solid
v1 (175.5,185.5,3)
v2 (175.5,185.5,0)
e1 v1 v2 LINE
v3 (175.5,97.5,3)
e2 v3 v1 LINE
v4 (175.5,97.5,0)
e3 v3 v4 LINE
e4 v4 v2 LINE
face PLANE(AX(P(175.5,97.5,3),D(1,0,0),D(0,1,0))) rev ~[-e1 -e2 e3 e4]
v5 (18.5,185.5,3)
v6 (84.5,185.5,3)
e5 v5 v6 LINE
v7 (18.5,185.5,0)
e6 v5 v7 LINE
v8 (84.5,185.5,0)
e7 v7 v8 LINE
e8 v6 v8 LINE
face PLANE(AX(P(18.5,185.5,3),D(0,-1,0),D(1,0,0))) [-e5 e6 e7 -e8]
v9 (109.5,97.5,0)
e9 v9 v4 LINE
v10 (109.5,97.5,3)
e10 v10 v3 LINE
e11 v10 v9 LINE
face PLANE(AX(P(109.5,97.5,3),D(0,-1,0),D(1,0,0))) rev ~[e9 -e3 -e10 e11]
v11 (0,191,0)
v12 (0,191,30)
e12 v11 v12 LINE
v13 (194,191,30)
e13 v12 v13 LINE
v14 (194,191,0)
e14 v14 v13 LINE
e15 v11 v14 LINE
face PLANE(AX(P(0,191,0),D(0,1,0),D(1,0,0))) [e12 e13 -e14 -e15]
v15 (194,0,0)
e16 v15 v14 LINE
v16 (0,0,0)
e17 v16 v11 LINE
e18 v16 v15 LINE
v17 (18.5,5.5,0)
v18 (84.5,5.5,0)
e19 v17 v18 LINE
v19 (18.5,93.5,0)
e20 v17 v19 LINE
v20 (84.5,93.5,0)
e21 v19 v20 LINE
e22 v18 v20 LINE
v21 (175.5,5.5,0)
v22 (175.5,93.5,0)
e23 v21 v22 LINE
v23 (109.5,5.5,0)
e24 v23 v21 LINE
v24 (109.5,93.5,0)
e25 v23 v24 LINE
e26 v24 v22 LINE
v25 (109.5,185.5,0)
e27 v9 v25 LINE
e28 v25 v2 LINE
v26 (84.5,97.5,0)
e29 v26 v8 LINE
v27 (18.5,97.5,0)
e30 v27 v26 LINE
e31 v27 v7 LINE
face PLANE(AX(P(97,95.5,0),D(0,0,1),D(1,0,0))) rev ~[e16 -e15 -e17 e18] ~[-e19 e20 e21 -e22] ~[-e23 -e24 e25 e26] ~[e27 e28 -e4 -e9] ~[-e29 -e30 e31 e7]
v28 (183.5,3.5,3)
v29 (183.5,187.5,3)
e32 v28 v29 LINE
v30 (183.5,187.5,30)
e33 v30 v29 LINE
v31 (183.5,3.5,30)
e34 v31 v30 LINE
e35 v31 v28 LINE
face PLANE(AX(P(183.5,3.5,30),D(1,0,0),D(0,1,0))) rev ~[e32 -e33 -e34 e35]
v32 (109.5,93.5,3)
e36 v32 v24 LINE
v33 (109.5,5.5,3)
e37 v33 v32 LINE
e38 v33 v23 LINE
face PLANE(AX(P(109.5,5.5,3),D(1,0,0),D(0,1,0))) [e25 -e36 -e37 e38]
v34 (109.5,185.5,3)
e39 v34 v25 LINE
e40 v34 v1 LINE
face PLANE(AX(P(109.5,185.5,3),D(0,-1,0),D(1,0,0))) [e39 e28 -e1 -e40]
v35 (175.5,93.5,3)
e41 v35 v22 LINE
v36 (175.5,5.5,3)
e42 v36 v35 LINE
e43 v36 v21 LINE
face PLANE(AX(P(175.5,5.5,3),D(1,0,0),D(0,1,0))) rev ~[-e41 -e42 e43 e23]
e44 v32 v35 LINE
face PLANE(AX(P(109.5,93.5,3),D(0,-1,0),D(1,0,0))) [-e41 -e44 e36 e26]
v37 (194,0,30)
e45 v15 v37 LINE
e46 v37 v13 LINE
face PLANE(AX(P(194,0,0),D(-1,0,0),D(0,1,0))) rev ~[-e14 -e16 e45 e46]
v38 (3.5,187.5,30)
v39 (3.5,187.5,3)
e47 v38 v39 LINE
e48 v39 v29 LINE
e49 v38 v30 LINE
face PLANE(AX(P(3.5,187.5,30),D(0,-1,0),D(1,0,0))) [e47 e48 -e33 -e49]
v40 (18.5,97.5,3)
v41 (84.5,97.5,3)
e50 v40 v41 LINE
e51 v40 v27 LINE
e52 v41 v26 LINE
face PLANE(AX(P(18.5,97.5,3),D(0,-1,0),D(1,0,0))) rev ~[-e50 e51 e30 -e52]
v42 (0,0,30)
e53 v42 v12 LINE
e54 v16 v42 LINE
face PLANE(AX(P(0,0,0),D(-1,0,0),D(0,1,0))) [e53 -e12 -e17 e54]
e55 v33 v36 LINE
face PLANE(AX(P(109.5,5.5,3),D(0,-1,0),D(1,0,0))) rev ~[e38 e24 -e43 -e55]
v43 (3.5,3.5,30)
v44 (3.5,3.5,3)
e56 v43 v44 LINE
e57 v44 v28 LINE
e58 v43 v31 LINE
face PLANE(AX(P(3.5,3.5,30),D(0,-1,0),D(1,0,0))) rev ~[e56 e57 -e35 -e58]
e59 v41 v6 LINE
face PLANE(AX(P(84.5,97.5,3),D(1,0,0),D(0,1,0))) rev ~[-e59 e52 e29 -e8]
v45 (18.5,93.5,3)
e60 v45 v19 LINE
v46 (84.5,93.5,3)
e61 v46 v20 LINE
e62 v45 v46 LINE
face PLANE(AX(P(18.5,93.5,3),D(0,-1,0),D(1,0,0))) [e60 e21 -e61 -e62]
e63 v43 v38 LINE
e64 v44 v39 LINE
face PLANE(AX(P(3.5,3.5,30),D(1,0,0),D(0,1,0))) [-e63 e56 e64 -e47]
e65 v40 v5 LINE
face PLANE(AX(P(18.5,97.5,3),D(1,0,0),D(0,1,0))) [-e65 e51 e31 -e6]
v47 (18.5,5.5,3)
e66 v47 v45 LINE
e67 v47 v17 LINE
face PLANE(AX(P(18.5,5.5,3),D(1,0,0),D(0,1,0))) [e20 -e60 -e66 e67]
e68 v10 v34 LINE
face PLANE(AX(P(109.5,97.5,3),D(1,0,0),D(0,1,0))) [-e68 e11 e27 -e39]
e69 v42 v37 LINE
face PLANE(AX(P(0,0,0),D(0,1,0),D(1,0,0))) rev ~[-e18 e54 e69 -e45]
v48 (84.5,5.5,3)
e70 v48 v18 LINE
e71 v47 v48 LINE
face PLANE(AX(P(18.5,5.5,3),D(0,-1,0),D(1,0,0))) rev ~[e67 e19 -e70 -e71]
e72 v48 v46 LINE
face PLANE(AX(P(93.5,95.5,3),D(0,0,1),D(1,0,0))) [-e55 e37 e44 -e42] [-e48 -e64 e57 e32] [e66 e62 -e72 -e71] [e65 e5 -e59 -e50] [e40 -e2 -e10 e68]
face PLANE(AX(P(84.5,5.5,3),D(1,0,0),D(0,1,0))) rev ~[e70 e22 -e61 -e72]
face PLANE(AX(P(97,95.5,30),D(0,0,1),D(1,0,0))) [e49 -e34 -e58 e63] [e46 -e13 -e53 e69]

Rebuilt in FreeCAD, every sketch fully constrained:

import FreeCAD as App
import Part
import Sketcher
from FreeCAD import Vector
Q = App.Units.Quantity

doc = App.newDocument("Part")
body = doc.addObject("PartDesign::Body", "Body")

# Sketch on XY plane
sketch1 = doc.addObject("Sketcher::SketchObject", "Sketch")
body.addObject(sketch1)
sketch1.AttachmentSupport = (doc.XY_Plane, [""])
sketch1.MapMode = "FlatFace"
sketch1.addGeometry(Part.LineSegment(Vector(0, 191, 0), Vector(0, 0, 0)), False)
sketch1.addGeometry(Part.LineSegment(Vector(0, 0, 0), Vector(194, 0, 0)), False)
sketch1.addGeometry(Part.LineSegment(Vector(194, 0, 0), Vector(194, 191, 0)), False)
sketch1.addGeometry(Part.LineSegment(Vector(194, 191, 0), Vector(0, 191, 0)), False)
sketch1.addConstraint(Sketcher.Constraint("Coincident", 0, 2, 1, 1))
sketch1.addConstraint(Sketcher.Constraint("Coincident", 1, 2, 2, 1))
sketch1.addConstraint(Sketcher.Constraint("Coincident", 2, 2, 3, 1))
sketch1.addConstraint(Sketcher.Constraint("Coincident", 3, 2, 0, 1))
sketch1.addConstraint(Sketcher.Constraint("Vertical", 0))
sketch1.addConstraint(Sketcher.Constraint("Horizontal", 1))
sketch1.addConstraint(Sketcher.Constraint("Vertical", 2))
sketch1.addConstraint(Sketcher.Constraint("Horizontal", 3))
sketch1.addConstraint(Sketcher.Constraint("Coincident", 0, 2, -1, 1))
sketch1.addConstraint(Sketcher.Constraint("DistanceX", 1, 1, 1, 2, Q("194 mm")))
sketch1.addConstraint(Sketcher.Constraint("DistanceY", 0, 2, 0, 1, Q("191 mm")))
pad1 = doc.addObject("PartDesign::Pad", "Pad")
body.addObject(pad1)
pad1.Profile = sketch1
pad1.Length = 30

# Sketch on XY plane
sketch2 = doc.addObject("Sketcher::SketchObject", "Sketch001")
body.addObject(sketch2)
sketch2.AttachmentSupport = (doc.XY_Plane, [""])
sketch2.MapMode = "FlatFace"
sketch2.AttachmentOffset = App.Placement(Vector(0, 0, 30), App.Rotation())
sketch2.addGeometry(Part.LineSegment(Vector(3.5, 187.5, 0), Vector(3.5, 3.5, 0)), False)
sketch2.addGeometry(Part.LineSegment(Vector(3.5, 3.5, 0), Vector(183.5, 3.5, 0)), False)
sketch2.addGeometry(Part.LineSegment(Vector(183.5, 3.5, 0), Vector(183.5, 187.5, 0)), False)
sketch2.addGeometry(Part.LineSegment(Vector(183.5, 187.5, 0), Vector(3.5, 187.5, 0)), False)
sketch2.addConstraint(Sketcher.Constraint("Coincident", 0, 2, 1, 1))
sketch2.addConstraint(Sketcher.Constraint("Coincident", 1, 2, 2, 1))
sketch2.addConstraint(Sketcher.Constraint("Coincident", 2, 2, 3, 1))
sketch2.addConstraint(Sketcher.Constraint("Coincident", 3, 2, 0, 1))
sketch2.addConstraint(Sketcher.Constraint("Vertical", 0))
sketch2.addConstraint(Sketcher.Constraint("Horizontal", 1))
sketch2.addConstraint(Sketcher.Constraint("Vertical", 2))
sketch2.addConstraint(Sketcher.Constraint("Horizontal", 3))
sketch2.addConstraint(Sketcher.Constraint("DistanceX", 1, 1, 1, 2, Q("180 mm")))
sketch2.addConstraint(Sketcher.Constraint("DistanceY", 0, 2, 0, 1, Q("184 mm")))
sketch2.addConstraint(Sketcher.Constraint("DistanceX", -1, 1, 0, 2, Q("3.5 mm")))
sketch2.addConstraint(Sketcher.Constraint("DistanceY", -1, 1, 0, 2, Q("3.5 mm")))
pocket1 = doc.addObject("PartDesign::Pocket", "Pocket")
body.addObject(pocket1)
pocket1.Profile = sketch2
pocket1.Length = 27

# Sketch on XY plane
sketch3 = doc.addObject("Sketcher::SketchObject", "Sketch002")
body.addObject(sketch3)
sketch3.AttachmentSupport = (doc.XY_Plane, [""])
sketch3.MapMode = "FlatFace"
sketch3.AttachmentOffset = App.Placement(Vector(0, 0, 3), App.Rotation())
sketch3.addGeometry(Part.LineSegment(Vector(18.5, 185.5, 0), Vector(18.5, 97.5, 0)), False)
sketch3.addGeometry(Part.LineSegment(Vector(18.5, 97.5, 0), Vector(84.5, 97.5, 0)), False)
sketch3.addGeometry(Part.LineSegment(Vector(84.5, 97.5, 0), Vector(84.5, 185.5, 0)), False)
sketch3.addGeometry(Part.LineSegment(Vector(84.5, 185.5, 0), Vector(18.5, 185.5, 0)), False)
sketch3.addConstraint(Sketcher.Constraint("Coincident", 0, 2, 1, 1))
sketch3.addConstraint(Sketcher.Constraint("Coincident", 1, 2, 2, 1))
sketch3.addConstraint(Sketcher.Constraint("Coincident", 2, 2, 3, 1))
sketch3.addConstraint(Sketcher.Constraint("Coincident", 3, 2, 0, 1))
sketch3.addConstraint(Sketcher.Constraint("Vertical", 0))
sketch3.addConstraint(Sketcher.Constraint("Horizontal", 1))
sketch3.addConstraint(Sketcher.Constraint("Vertical", 2))
sketch3.addConstraint(Sketcher.Constraint("Horizontal", 3))
sketch3.addConstraint(Sketcher.Constraint("DistanceX", 1, 1, 1, 2, Q("66 mm")))
sketch3.addConstraint(Sketcher.Constraint("DistanceY", 0, 2, 0, 1, Q("88 mm")))
sketch3.addConstraint(Sketcher.Constraint("DistanceX", -1, 1, 0, 2, Q("18.5 mm")))
sketch3.addConstraint(Sketcher.Constraint("DistanceY", -1, 1, 0, 2, Q("97.5 mm")))
pocket2 = doc.addObject("PartDesign::Pocket", "Pocket001")
body.addObject(pocket2)
pocket2.Profile = sketch3
pocket2.Length = 5

# Sketch on XY plane
sketch4 = doc.addObject("Sketcher::SketchObject", "Sketch003")
body.addObject(sketch4)
sketch4.AttachmentSupport = (doc.XY_Plane, [""])
sketch4.MapMode = "FlatFace"
sketch4.AttachmentOffset = App.Placement(Vector(0, 0, 3), App.Rotation())
sketch4.addGeometry(Part.LineSegment(Vector(109.5, 185.5, 0), Vector(109.5, 97.5, 0)), False)
sketch4.addGeometry(Part.LineSegment(Vector(109.5, 97.5, 0), Vector(175.5, 97.5, 0)), False)
sketch4.addGeometry(Part.LineSegment(Vector(175.5, 97.5, 0), Vector(175.5, 185.5, 0)), False)
sketch4.addGeometry(Part.LineSegment(Vector(175.5, 185.5, 0), Vector(109.5, 185.5, 0)), False)
sketch4.addConstraint(Sketcher.Constraint("Coincident", 0, 2, 1, 1))
sketch4.addConstraint(Sketcher.Constraint("Coincident", 1, 2, 2, 1))
sketch4.addConstraint(Sketcher.Constraint("Coincident", 2, 2, 3, 1))
sketch4.addConstraint(Sketcher.Constraint("Coincident", 3, 2, 0, 1))
sketch4.addConstraint(Sketcher.Constraint("Vertical", 0))
sketch4.addConstraint(Sketcher.Constraint("Horizontal", 1))
sketch4.addConstraint(Sketcher.Constraint("Vertical", 2))
sketch4.addConstraint(Sketcher.Constraint("Horizontal", 3))
sketch4.addConstraint(Sketcher.Constraint("DistanceX", 1, 1, 1, 2, Q("66 mm")))
sketch4.addConstraint(Sketcher.Constraint("DistanceY", 0, 2, 0, 1, Q("88 mm")))
sketch4.addConstraint(Sketcher.Constraint("DistanceX", -1, 1, 0, 2, Q("109.5 mm")))
sketch4.addConstraint(Sketcher.Constraint("DistanceY", -1, 1, 0, 2, Q("97.5 mm")))
pocket3 = doc.addObject("PartDesign::Pocket", "Pocket002")
body.addObject(pocket3)
pocket3.Profile = sketch4
pocket3.Length = 5
doc.recompute()

linearpattern = doc.addObject("PartDesign::LinearPattern", "LinearPattern")
body.addObject(linearpattern)
linearpattern.Originals = [pocket2, pocket3]
linearpattern.Direction = (doc.Y_Axis, [""])
linearpattern.Mode = "offset"
linearpattern.Offset = 92
linearpattern.Occurrences = 2
linearpattern.Reversed = True
body.Tip = linearpattern

doc.recompute()
